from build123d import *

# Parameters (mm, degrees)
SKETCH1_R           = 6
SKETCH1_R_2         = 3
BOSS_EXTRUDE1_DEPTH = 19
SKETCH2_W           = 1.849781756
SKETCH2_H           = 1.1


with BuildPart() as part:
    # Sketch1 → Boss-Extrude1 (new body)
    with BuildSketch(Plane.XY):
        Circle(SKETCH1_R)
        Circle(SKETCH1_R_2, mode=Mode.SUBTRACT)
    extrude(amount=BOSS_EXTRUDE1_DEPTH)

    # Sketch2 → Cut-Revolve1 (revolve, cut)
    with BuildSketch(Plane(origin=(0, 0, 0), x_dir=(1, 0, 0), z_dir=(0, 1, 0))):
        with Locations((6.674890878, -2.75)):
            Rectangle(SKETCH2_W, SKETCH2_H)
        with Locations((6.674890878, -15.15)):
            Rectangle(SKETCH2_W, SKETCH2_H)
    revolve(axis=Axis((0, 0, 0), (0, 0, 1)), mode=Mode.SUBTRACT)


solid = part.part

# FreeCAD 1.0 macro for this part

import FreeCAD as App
import Part
import Sketcher

V = App.Vector
Q = App.Units.Quantity

doc = App.newDocument("Part")
body = doc.addObject("PartDesign::Body", "Body")

# Sketch on XY plane
sketch1 = doc.addObject("Sketcher::SketchObject", "Sketch")
body.addObject(sketch1)
sketch1.AttachmentSupport = (doc.XY_Plane, [""])
sketch1.MapMode = "FlatFace"
sketch1.addGeometry([
    Part.Circle(V(0, 0, 0), V(0, 0, 1), 6),
    Part.Circle(V(0, 0, 0), V(0, 0, 1), 3),
], False)
sketch1.addConstraint([
    Sketcher.Constraint("Coincident", 0, 3, -1, 1),
    Sketcher.Constraint("Coincident", 1, 3, -1, 1),
    Sketcher.Constraint("Diameter", 0, Q("12 mm")),
    Sketcher.Constraint("Diameter", 1, Q("6 mm")),
])
pad1 = doc.addObject("PartDesign::Pad", "Pad")
body.addObject(pad1)
pad1.Profile = sketch1
pad1.Length = 19

# Sketch on XZ plane
sketch2 = doc.addObject("Sketcher::SketchObject", "Sketch001")
body.addObject(sketch2)
sketch2.AttachmentSupport = (doc.XZ_Plane, [""])
sketch2.MapMode = "FlatFace"
sketch2.addGeometry([
    Part.LineSegment(V(5.8, 2.2, 0), V(5.8, 3.3, 0)),  # 0
    Part.LineSegment(V(5.8, 3.3, 0), V(7.6, 3.3, 0)),  # 1
    Part.LineSegment(V(7.6, 3.3, 0), V(7.6, 2.2, 0)),  # 2
    Part.LineSegment(V(7.6, 2.2, 0), V(5.8, 2.2, 0)),  # 3
    Part.LineSegment(V(5.8, 14.6, 0), V(5.8, 15.7, 0)),  # 4
    Part.LineSegment(V(5.8, 15.7, 0), V(7.6, 15.7, 0)),  # 5
    Part.LineSegment(V(7.6, 15.7, 0), V(7.6, 14.6, 0)),  # 6
    Part.LineSegment(V(7.6, 14.6, 0), V(5.8, 14.6, 0)),  # 7
], False)
sketch2.addConstraint([
    Sketcher.Constraint("Coincident", 0, 2, 1, 1),
    Sketcher.Constraint("Coincident", 1, 2, 2, 1),
    Sketcher.Constraint("Coincident", 2, 2, 3, 1),
    Sketcher.Constraint("Coincident", 3, 2, 0, 1),
    Sketcher.Constraint("Coincident", 4, 2, 5, 1),
    Sketcher.Constraint("Coincident", 5, 2, 6, 1),
    Sketcher.Constraint("Coincident", 6, 2, 7, 1),
    Sketcher.Constraint("Coincident", 7, 2, 4, 1),
    Sketcher.Constraint("Vertical", 0),
    Sketcher.Constraint("Horizontal", 1),
    Sketcher.Constraint("Vertical", 2),
    Sketcher.Constraint("Horizontal", 3),
    Sketcher.Constraint("Vertical", 4),
    Sketcher.Constraint("Horizontal", 5),
    Sketcher.Constraint("Vertical", 6),
    Sketcher.Constraint("Horizontal", 7),
    Sketcher.Constraint("Vertical", 3, 2, 4, 2),
    Sketcher.Constraint("Vertical", 2, 2, 5, 2),
    Sketcher.Constraint("Equal", 2, 4),
    Sketcher.Constraint("DistanceY", 0, 1, 0, 2, Q("1.1 mm")),
    Sketcher.Constraint("DistanceY", -1, 1, 0, 2, Q("3.3 mm")),
    Sketcher.Constraint("DistanceY", -1, 1, 4, 2, Q("15.7 mm")),
    Sketcher.Constraint("DistanceX", -1, 1, 0, 2, Q("5.75 mm")),
    Sketcher.Constraint("DistanceX", 1, 1, 1, 2, Q("1.849782 mm")),
])
groove = doc.addObject("PartDesign::Groove", "Groove")
body.addObject(groove)
groove.Profile = sketch2
groove.ReferenceAxis = (sketch2, ["V_Axis"])
groove.Angle = 360

doc.recompute()
